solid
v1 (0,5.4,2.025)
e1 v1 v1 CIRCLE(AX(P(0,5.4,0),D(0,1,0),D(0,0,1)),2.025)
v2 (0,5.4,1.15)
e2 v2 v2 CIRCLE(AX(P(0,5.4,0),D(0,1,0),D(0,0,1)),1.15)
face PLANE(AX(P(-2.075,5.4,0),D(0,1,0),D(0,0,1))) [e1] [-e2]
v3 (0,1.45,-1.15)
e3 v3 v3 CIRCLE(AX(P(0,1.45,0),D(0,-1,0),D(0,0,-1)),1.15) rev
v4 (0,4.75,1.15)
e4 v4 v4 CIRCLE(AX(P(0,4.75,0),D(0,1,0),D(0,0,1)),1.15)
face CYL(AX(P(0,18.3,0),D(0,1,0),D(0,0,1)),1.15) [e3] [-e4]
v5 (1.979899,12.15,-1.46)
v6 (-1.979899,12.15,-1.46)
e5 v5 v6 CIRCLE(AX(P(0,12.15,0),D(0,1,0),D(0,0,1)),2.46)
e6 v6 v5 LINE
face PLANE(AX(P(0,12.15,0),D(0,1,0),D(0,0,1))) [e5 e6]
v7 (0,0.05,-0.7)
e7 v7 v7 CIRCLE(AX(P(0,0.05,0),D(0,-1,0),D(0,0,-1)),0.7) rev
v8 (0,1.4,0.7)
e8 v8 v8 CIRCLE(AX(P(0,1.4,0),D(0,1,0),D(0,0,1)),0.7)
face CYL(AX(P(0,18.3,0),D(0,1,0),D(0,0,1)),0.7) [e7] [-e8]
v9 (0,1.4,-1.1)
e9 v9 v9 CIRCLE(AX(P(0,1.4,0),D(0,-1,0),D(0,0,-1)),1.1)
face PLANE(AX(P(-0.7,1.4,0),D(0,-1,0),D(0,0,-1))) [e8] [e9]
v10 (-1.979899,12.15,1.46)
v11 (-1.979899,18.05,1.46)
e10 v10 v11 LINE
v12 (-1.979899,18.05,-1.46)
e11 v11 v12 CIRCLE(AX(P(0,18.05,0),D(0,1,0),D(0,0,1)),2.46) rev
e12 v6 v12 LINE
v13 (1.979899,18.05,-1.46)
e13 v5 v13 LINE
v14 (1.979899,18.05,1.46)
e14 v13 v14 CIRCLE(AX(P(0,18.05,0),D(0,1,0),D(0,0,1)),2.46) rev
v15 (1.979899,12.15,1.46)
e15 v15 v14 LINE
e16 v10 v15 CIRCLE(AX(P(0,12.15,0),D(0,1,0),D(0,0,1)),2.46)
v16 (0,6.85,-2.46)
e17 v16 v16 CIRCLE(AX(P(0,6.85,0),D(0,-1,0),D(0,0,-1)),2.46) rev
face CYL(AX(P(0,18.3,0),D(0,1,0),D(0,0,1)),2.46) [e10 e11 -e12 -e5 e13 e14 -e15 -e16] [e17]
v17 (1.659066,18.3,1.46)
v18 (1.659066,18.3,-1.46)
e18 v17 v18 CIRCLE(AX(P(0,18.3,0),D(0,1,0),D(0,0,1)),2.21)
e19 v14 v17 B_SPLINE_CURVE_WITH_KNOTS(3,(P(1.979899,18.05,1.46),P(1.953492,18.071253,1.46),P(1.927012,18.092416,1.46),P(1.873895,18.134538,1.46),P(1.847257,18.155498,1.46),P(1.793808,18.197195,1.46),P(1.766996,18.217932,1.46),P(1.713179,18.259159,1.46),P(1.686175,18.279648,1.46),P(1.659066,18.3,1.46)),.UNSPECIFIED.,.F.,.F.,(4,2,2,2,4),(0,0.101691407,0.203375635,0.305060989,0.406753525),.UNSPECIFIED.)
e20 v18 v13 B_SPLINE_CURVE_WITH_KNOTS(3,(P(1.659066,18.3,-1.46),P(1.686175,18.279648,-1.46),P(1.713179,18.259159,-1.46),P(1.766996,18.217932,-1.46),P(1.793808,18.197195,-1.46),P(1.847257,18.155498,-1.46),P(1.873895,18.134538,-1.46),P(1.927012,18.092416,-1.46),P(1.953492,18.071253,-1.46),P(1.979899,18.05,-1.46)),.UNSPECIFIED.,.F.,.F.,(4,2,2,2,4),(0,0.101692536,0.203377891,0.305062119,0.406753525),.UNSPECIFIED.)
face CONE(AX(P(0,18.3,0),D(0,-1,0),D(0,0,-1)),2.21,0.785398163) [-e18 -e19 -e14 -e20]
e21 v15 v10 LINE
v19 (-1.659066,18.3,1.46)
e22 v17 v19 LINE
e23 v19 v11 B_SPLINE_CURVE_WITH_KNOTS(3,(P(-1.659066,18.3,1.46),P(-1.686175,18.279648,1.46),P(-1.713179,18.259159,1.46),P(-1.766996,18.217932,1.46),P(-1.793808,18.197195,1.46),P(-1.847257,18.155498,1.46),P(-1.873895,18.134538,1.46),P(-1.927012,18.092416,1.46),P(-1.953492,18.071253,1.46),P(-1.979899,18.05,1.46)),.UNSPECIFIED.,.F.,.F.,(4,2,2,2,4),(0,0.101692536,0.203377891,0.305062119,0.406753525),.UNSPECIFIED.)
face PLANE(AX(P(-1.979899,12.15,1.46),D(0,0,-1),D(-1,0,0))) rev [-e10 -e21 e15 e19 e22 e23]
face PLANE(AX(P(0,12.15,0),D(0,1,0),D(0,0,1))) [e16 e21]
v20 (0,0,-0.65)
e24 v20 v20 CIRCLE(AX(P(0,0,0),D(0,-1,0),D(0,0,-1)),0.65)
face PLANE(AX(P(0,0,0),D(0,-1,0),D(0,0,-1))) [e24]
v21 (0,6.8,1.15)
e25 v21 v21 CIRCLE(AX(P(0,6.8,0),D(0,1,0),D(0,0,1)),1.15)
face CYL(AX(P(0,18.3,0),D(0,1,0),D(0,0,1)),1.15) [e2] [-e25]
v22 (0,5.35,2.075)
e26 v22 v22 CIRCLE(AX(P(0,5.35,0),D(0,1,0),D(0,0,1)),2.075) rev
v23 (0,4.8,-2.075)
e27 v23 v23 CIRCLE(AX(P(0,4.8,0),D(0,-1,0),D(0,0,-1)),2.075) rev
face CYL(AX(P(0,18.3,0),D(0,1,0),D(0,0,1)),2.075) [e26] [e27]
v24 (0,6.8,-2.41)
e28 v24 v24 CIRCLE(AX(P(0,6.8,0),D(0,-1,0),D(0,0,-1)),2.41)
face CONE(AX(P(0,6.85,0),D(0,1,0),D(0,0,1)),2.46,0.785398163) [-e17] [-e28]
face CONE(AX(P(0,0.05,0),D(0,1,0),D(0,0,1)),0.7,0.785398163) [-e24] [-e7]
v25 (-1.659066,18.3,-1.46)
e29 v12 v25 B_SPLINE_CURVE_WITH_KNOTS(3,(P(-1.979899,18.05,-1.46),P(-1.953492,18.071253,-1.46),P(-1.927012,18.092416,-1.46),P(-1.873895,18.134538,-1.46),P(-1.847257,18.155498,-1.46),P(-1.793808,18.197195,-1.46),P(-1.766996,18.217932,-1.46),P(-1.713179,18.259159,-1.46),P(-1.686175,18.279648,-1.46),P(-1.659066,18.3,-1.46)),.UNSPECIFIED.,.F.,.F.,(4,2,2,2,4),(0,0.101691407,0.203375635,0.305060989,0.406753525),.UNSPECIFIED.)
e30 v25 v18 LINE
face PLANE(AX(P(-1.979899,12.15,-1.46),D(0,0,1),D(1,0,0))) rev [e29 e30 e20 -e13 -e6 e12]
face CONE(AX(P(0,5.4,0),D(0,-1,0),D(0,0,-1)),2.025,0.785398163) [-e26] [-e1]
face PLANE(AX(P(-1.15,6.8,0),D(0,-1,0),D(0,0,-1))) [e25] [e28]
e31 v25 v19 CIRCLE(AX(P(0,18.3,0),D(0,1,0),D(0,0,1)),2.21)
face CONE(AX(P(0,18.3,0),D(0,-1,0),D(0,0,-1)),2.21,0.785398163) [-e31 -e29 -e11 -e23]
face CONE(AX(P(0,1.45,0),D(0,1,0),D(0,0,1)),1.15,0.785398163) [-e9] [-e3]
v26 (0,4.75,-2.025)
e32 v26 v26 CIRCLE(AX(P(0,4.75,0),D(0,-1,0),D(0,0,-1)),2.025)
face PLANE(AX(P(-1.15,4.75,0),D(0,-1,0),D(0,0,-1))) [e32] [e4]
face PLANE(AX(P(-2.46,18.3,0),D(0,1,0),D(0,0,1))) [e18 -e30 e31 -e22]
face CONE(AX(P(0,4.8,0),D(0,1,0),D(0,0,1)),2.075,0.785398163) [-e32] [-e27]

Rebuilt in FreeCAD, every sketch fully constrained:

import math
import FreeCAD as App
import Part
import Sketcher
from FreeCAD import Vector
Q = App.Units.Quantity


def edges_at(feature, points):
    """Names of the edges that pass closest to the given points."""
    edges = feature.Shape.Edges
    near = lambda p: min(range(len(edges)), key=lambda i: edges[i].distToShape(Part.Vertex(*p))[0])
    return sorted({f"Edge{near(p) + 1}" for p in points})


def add_polygon(sketch, points):
    """Adds a closed chain of lines whose ends are joined by coincident constraints."""
    first, n = sketch.GeometryCount, len(points)
    for a, b in zip(points, points[1:] + points[:1]):
        sketch.addGeometry(Part.LineSegment(App.Vector(*a, 0), App.Vector(*b, 0)), False)
    for i in range(n):
        sketch.addConstraint(Sketcher.Constraint("Coincident", first + i, 2, first + (i + 1) % n, 1))

doc = App.newDocument("Part")
params = doc.addObject("Spreadsheet::Sheet", "Params")
for row, (alias, value) in enumerate([
    ("sketch1_width", "0.7 mm"),
    ("sketch1_height", "18.3 mm"),
    ("sketch1_height2", "11.5 mm"),
    ("sketch1_height3", "1.4 mm"),
    ("sketch1_width2", "2.46 mm"),
    ("revolution_angle", "360 deg"),
    ("sketch2_radius", "2.46 mm"),
    ("pocket1_length", "6.15 mm"),
    ("chamfer_size", "0.25 mm"),
    ("chamfer2_size", "0.05 mm"),
], start=1):
    params.set(f"A{row}", alias)
    params.set(f"B{row}", "=" + value)
    params.setAlias(f"B{row}", alias)

body = doc.addObject("PartDesign::Body", "Body")

# Sketch on XY plane
sketch1 = doc.addObject("Sketcher::SketchObject", "Sketch")
body.addObject(sketch1)
sketch1.AttachmentSupport = (doc.XY_Plane, [""])
sketch1.MapMode = "FlatFace"
add_polygon(sketch1, [(0, 0), (0, 18.3), (-2.46, 18.3), (-2.46, 6.8), (-1.15, 6.8), (-1.15, 5.4), (-2.075, 5.4), (-2.075, 4.75), (-1.15, 4.75), (-1.15, 1.4), (-0.7, 1.4), (-0.7, 0)])  # lines 0-11
sketch1.addConstraint([
    Sketcher.Constraint("Vertical", 0),
    Sketcher.Constraint("Horizontal", 1),
    Sketcher.Constraint("Vertical", 2),
    Sketcher.Constraint("Horizontal", 3),
    Sketcher.Constraint("Vertical", 4),
    Sketcher.Constraint("Horizontal", 5),
    Sketcher.Constraint("Vertical", 6),
    Sketcher.Constraint("Horizontal", 7),
    Sketcher.Constraint("Vertical", 8),
    Sketcher.Constraint("Horizontal", 9),
    Sketcher.Constraint("Vertical", 10),
    Sketcher.Constraint("Horizontal", 11),
    Sketcher.Constraint("Coincident", 11, 2, -1, 1),
    Sketcher.Constraint("Vertical", 4, 2, 7, 2),
    Sketcher.Constraint("Equal", 4, 10),
    Sketcher.Constraint("DistanceX", 11, 1, 11, 2, Q("0.7 mm")),
    Sketcher.Constraint("DistanceY", 0, 1, 0, 2, Q("18.3 mm")),
    Sketcher.Constraint("DistanceY", 2, 2, 2, 1, Q("11.5 mm")),
    Sketcher.Constraint("DistanceY", 4, 2, 4, 1, Q("1.4 mm")),
    Sketcher.Constraint("DistanceX", 1, 2, 1, 1, Q("2.46 mm")),
    Sketcher.Constraint("DistanceX", 3, 1, 3, 2, Q("1.31 mm")),
    Sketcher.Constraint("DistanceY", 6, 2, 6, 1, Q("0.65 mm")),
    Sketcher.Constraint("DistanceX", 5, 2, 5, 1, Q("0.925 mm")),
])
sketch1.setExpression("Constraints[27]", "Params.sketch1_width")
sketch1.setExpression("Constraints[28]", "Params.sketch1_height")
sketch1.setExpression("Constraints[29]", "Params.sketch1_height2")
sketch1.setExpression("Constraints[30]", "Params.sketch1_height3")
sketch1.setExpression("Constraints[31]", "Params.sketch1_width2")
revolution = doc.addObject("PartDesign::Revolution", "Revolution")
body.addObject(revolution)
revolution.Profile = sketch1
revolution.ReferenceAxis = (sketch1, ["V_Axis"])
revolution.setExpression("Angle", "Params.revolution_angle")

# Sketch on XZ plane
sketch2 = doc.addObject("Sketcher::SketchObject", "Sketch001")
body.addObject(sketch2)
sketch2.AttachmentSupport = (doc.XZ_Plane, [""])
sketch2.MapMode = "FlatFace"
sketch2.AttachmentOffset = App.Placement(Vector(0, 0, -18.3), App.Rotation())
sketch2.addGeometry([
    Part.LineSegment(Vector(-1.979899, -1.46, 0), Vector(1.979899, -1.46, 0)),
    Part.ArcOfCircle(Part.Circle(Vector(0, 0, 0), Vector(0, 0, 1), 2.46), math.radians(-143.594515), math.radians(-36.405485)),
    Part.LineSegment(Vector(1.979899, 1.46, 0), Vector(-1.979899, 1.46, 0)),
    Part.ArcOfCircle(Part.Circle(Vector(0, 0, 0), Vector(0, 0, 1), 2.46), math.radians(36.405485), math.radians(143.594515)),
], False)
sketch2.addConstraint([
    Sketcher.Constraint("Coincident", 0, 1, 1, 1),
    Sketcher.Constraint("Coincident", 1, 2, 0, 2),
    Sketcher.Constraint("Coincident", 2, 1, 3, 1),
    Sketcher.Constraint("Coincident", 3, 2, 2, 2),
    Sketcher.Constraint("Horizontal", 0),
    Sketcher.Constraint("Horizontal", 2),
    Sketcher.Constraint("Coincident", 1, 3, -1, 1),
    Sketcher.Constraint("Coincident", 3, 3, -1, 1),
    Sketcher.Constraint("Equal", 1, 3),
    Sketcher.Constraint("Vertical", 1, 2, 2, 1),
    Sketcher.Constraint("Radius", 1, Q("2.46 mm")),
    Sketcher.Constraint("DistanceY", 0, 1, -1, 1, Q("1.46 mm")),
])
sketch2.setExpression("Constraints[10]", "Params.sketch2_radius")
pocket1 = doc.addObject("PartDesign::Pocket", "Pocket")
body.addObject(pocket1)
pocket1.Profile = sketch2
pocket1.setExpression("Length", "Params.pocket1_length")
pocket1.Reversed = True
doc.recompute()

chamfer = doc.addObject("PartDesign::Chamfer", "Chamfer")
body.addObject(chamfer)
chamfer.Base = (pocket1, edges_at(pocket1, [(-2.337, 18.3, -0.768), (2.46, 18.3, 0)]))
chamfer.setExpression("Size", "Params.chamfer_size")
doc.recompute()

chamfer2 = doc.addObject("PartDesign::Chamfer", "Chamfer001")
body.addObject(chamfer2)
chamfer2.Base = (chamfer, edges_at(chamfer, [
    (2.075, 5.4, 0),
    (2.075, 4.75, 0),
    (1.15, 1.4, 0),
    (0.7, 0, 0),
    (2.46, 6.8, 0),
]))
chamfer2.setExpression("Size", "Params.chamfer2_size")

doc.recompute()
